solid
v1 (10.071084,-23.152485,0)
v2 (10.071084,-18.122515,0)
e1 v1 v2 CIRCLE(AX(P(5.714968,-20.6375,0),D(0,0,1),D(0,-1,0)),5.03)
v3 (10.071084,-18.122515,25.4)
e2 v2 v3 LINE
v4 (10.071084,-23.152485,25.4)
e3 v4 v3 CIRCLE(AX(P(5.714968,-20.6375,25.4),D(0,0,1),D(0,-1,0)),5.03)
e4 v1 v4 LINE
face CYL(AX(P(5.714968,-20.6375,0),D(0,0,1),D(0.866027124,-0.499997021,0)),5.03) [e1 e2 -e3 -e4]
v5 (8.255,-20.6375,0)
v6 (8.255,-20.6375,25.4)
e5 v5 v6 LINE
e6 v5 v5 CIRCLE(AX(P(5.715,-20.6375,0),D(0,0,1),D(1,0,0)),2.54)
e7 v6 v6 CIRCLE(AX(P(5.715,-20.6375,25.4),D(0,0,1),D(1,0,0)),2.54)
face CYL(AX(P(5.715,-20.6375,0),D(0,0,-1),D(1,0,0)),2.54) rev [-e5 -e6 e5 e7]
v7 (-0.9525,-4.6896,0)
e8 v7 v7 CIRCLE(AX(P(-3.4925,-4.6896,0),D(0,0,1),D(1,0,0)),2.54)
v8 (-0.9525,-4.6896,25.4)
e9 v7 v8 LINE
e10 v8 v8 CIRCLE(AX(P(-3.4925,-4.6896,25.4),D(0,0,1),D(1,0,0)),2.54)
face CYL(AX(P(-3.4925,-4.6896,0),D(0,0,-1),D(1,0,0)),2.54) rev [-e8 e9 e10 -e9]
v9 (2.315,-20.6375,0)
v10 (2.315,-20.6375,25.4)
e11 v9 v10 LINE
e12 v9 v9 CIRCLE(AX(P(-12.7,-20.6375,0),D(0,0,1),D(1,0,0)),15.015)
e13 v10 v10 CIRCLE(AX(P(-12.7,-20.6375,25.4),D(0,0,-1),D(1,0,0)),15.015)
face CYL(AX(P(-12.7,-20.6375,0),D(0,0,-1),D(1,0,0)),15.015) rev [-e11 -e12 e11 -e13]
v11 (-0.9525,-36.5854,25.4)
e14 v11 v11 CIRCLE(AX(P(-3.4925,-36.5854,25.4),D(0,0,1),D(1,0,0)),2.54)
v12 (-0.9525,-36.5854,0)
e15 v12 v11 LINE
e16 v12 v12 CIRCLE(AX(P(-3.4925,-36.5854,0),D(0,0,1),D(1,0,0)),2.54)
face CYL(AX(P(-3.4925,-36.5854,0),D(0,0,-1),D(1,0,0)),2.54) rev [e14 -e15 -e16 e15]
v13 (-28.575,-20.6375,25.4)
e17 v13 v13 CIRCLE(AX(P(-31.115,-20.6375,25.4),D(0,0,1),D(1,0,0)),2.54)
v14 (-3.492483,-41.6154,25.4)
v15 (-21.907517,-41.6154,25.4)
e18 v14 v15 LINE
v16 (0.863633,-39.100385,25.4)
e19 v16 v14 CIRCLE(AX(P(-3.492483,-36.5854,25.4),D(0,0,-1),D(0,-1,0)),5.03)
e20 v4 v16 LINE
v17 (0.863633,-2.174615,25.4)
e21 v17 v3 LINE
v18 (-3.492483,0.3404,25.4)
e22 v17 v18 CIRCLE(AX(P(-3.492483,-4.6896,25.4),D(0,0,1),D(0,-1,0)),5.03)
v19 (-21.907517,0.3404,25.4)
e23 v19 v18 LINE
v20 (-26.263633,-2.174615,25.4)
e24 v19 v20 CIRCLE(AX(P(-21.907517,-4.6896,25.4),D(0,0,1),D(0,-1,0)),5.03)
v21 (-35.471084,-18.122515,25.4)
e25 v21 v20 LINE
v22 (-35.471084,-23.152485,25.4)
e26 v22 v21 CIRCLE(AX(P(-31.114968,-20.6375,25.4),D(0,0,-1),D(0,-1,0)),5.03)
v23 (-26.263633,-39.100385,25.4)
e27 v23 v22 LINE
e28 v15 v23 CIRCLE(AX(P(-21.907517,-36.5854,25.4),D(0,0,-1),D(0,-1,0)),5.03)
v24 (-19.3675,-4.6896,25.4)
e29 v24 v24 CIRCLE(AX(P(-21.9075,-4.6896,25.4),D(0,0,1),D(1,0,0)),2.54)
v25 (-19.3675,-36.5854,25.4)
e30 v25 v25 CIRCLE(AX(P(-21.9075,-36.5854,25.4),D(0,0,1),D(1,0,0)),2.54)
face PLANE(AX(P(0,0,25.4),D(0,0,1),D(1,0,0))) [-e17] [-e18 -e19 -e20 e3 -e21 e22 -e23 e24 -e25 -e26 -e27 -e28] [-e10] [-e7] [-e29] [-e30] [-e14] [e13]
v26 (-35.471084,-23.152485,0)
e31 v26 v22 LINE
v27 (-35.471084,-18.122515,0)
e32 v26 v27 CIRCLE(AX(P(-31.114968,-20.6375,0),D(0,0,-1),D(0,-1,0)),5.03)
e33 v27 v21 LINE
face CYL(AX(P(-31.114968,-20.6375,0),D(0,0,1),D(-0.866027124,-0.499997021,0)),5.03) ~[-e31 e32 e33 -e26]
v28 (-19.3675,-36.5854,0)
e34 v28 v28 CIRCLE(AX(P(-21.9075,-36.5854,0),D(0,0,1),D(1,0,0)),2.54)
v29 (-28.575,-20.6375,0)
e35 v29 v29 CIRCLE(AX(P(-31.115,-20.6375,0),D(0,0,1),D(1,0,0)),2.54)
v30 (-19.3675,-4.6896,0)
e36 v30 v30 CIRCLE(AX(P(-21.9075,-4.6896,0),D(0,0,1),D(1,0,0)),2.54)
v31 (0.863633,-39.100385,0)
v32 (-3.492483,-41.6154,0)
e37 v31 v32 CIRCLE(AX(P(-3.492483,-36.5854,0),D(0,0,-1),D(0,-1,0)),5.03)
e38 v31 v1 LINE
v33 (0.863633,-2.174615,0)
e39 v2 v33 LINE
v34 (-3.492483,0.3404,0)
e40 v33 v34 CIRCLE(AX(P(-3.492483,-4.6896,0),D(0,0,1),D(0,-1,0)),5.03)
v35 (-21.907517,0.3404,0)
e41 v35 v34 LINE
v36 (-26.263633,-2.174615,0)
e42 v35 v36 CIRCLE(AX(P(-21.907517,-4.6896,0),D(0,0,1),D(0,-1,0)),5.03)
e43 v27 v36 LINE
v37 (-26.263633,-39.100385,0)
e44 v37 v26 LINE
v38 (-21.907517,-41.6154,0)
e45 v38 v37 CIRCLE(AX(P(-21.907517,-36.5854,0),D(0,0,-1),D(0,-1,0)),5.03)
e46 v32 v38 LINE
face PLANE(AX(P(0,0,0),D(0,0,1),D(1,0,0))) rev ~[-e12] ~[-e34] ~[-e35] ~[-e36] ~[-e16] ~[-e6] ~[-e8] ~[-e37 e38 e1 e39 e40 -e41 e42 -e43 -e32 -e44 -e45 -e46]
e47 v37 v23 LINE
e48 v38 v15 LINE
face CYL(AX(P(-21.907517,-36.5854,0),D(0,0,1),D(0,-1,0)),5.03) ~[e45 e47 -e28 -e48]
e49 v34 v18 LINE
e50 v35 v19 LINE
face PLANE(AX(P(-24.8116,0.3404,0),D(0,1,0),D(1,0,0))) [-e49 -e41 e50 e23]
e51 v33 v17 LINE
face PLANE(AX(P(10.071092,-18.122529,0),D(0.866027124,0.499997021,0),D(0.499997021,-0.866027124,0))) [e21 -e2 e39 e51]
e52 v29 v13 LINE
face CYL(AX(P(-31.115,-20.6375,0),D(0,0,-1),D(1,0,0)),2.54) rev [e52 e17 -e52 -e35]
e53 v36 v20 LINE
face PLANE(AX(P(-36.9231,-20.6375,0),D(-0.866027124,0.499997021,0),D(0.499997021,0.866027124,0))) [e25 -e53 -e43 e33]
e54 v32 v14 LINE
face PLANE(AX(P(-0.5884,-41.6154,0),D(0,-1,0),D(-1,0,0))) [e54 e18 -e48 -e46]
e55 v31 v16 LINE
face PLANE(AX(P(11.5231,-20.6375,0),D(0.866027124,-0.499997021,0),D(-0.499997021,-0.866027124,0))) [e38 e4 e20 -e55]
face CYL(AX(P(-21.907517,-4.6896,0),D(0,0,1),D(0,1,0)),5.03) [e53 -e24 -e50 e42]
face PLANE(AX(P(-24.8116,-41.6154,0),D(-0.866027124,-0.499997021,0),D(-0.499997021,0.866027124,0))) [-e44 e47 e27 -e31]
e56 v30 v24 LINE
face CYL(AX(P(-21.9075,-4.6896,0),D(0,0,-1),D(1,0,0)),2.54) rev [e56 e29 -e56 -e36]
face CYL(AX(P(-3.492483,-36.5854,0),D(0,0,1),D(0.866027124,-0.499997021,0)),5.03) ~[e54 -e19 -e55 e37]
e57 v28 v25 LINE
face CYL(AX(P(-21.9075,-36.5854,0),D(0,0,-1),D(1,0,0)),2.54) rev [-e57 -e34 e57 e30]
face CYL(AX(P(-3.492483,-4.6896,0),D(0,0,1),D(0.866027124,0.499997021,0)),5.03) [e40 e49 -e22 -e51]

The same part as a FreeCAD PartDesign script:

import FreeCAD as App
import Part
import Sketcher
from FreeCAD import Vector
Q = App.Units.Quantity


def edges_at(feature, points):
    """Names of the edges that pass closest to the given points."""
    edges = feature.Shape.Edges
    near = lambda p: min(range(len(edges)), key=lambda i: edges[i].distToShape(Part.Vertex(*p))[0])
    return sorted({f"Edge{near(p) + 1}" for p in points})

doc = App.newDocument("Part")
params = doc.addObject("Spreadsheet::Sheet", "Params")
for row, (alias, value) in enumerate([
    ("sketch1_diameter", "0.2 in"),
    ("pad1_length", "1 in"),
    ("fillet_radius", "5.03 mm"),
], start=1):
    params.set(f"A{row}", alias)
    params.set(f"B{row}", "=" + value)
    params.setAlias(f"B{row}", alias)

body = doc.addObject("PartDesign::Body", "Body")

# Sketch on XY plane
sketch1 = body.newObject("Sketcher::SketchObject", "Sketch")
sketch1.AttachmentSupport = (doc.getObject("XY_Plane"), [""])
sketch1.MapMode = "FlatFace"
sketch1.addGeometry([
    Part.LineSegment(Vector(11.5, -20.6, 0), Vector(-0.6, 0.3, 0)),  # 0
    Part.LineSegment(Vector(-0.6, 0.3, 0), Vector(-24.8, 0.3, 0)),  # 1
    Part.LineSegment(Vector(-24.8, 0.3, 0), Vector(-36.9, -20.6, 0)),  # 2
    Part.LineSegment(Vector(-36.9, -20.6, 0), Vector(-24.8, -41.6, 0)),  # 3
    Part.LineSegment(Vector(-24.8, -41.6, 0), Vector(-0.6, -41.6, 0)),  # 4
    Part.LineSegment(Vector(-0.6, -41.6, 0), Vector(11.5, -20.6, 0)),  # 5
    Part.Circle(Vector(-12.7, -20.6, 0), Vector(0, 0, 1), 15),  # 6
    Part.Circle(Vector(5.7, -20.6, 0), Vector(0, 0, 1), 2.5),  # 7
    Part.Circle(Vector(-3.5, -36.6, 0), Vector(0, 0, 1), 2.5),  # 8
    Part.Circle(Vector(-3.5, -4.7, 0), Vector(0, 0, 1), 2.5),  # 9
    Part.Circle(Vector(-31.1, -20.6, 0), Vector(0, 0, 1), 2.5),  # 10
    Part.Circle(Vector(-21.9, -36.6, 0), Vector(0, 0, 1), 2.5),  # 11
    Part.Circle(Vector(-21.9, -4.7, 0), Vector(0, 0, 1), 2.5),  # 12
], False)
sketch1.addConstraint([
    Sketcher.Constraint("Coincident", 0, 2, 1, 1),
    Sketcher.Constraint("Coincident", 1, 2, 2, 1),
    Sketcher.Constraint("Coincident", 2, 2, 3, 1),
    Sketcher.Constraint("Coincident", 3, 2, 4, 1),
    Sketcher.Constraint("Coincident", 4, 2, 5, 1),
    Sketcher.Constraint("Coincident", 5, 2, 0, 1),
    Sketcher.Constraint("Horizontal", 1),
    Sketcher.Constraint("Horizontal", 4),
    Sketcher.Constraint("Equal", 7, 8),
    Sketcher.Constraint("Equal", 8, 9),
    Sketcher.Constraint("Equal", 9, 10),
    Sketcher.Constraint("Equal", 10, 11),
    Sketcher.Constraint("Equal", 11, 12),
    Sketcher.Constraint("Parallel", 0, 3),
    Sketcher.Constraint("Parallel", 2, 5),
    Sketcher.Constraint("Horizontal", 6, 3, 7, 3),
    Sketcher.Constraint("Horizontal", 7, 3, 10, 3),
    Sketcher.Constraint("Horizontal", 8, 3, 11, 3),
    Sketcher.Constraint("Horizontal", 9, 3, 12, 3),
    Sketcher.Constraint("Horizontal", 10, 3, 2, 2),
    Sketcher.Constraint("Horizontal", 2, 2, 5, 2),
    Sketcher.Constraint("Vertical", 8, 3, 9, 3),
    Sketcher.Constraint("Vertical", 11, 3, 12, 3),
    Sketcher.Constraint("Vertical", 1, 2, 3, 2),
    Sketcher.Constraint("Vertical", 0, 2, 4, 2),
    Sketcher.Constraint("Diameter", 7, Q("0.2 in")),
    Sketcher.Constraint("DistanceX", 10, 3, 7, 3, Q("1.45 in")),
    Sketcher.Constraint("Angle", 0, Q("119.9998 deg")),
    Sketcher.Constraint("DistanceX", 6, 3, -1, 1, Q("0.5 in")),
    Sketcher.Constraint("Diameter", 6, Q("30.03 mm")),
    Sketcher.Constraint("DistanceY", 6, 3, -1, 1, Q("0.8125 in")),
    Sketcher.Constraint("DistanceX", -1, 1, 7, 3, Q("0.225 in")),
    Sketcher.Constraint("DistanceX", 11, 3, 8, 3, Q("0.725 in")),
    Sketcher.Constraint("DistanceX", 1, 2, 1, 1, Q("24.2232 mm")),
    Sketcher.Constraint("DistanceX", 8, 3, -1, 1, Q("0.1375 in")),
    Sketcher.Constraint("DistanceY", -1, 1, 0, 2, Q("0.0134 in")),
    Sketcher.Constraint("DistanceY", 8, 3, -1, 1, Q("36.5854 mm")),
    Sketcher.Constraint("DistanceY", 9, 3, -1, 1, Q("4.6896 mm")),
    Sketcher.Constraint("DistanceX", 0, 2, -1, 1, Q("0.5884 mm")),
])
sketch1.setExpression("Constraints[25]", "Params.sketch1_diameter")
pad1 = body.newObject("PartDesign::Pad", "Pad")
pad1.Profile = sketch1
pad1.setExpression("Length", "Params.pad1_length")
doc.recompute()

fillet = body.newObject("PartDesign::Fillet", "Fillet")
fillet.Base = (pad1, edges_at(pad1, [
    (-0.588, 0.34, 12.7),
    (-24.812, 0.34, 12.7),
    (-36.923, -20.637, 12.7),
    (-24.812, -41.615, 12.7),
    (-0.588, -41.615, 12.7),
    (11.523, -20.637, 12.7),
]))
fillet.setExpression("Radius", "Params.fillet_radius")

doc.recompute()
